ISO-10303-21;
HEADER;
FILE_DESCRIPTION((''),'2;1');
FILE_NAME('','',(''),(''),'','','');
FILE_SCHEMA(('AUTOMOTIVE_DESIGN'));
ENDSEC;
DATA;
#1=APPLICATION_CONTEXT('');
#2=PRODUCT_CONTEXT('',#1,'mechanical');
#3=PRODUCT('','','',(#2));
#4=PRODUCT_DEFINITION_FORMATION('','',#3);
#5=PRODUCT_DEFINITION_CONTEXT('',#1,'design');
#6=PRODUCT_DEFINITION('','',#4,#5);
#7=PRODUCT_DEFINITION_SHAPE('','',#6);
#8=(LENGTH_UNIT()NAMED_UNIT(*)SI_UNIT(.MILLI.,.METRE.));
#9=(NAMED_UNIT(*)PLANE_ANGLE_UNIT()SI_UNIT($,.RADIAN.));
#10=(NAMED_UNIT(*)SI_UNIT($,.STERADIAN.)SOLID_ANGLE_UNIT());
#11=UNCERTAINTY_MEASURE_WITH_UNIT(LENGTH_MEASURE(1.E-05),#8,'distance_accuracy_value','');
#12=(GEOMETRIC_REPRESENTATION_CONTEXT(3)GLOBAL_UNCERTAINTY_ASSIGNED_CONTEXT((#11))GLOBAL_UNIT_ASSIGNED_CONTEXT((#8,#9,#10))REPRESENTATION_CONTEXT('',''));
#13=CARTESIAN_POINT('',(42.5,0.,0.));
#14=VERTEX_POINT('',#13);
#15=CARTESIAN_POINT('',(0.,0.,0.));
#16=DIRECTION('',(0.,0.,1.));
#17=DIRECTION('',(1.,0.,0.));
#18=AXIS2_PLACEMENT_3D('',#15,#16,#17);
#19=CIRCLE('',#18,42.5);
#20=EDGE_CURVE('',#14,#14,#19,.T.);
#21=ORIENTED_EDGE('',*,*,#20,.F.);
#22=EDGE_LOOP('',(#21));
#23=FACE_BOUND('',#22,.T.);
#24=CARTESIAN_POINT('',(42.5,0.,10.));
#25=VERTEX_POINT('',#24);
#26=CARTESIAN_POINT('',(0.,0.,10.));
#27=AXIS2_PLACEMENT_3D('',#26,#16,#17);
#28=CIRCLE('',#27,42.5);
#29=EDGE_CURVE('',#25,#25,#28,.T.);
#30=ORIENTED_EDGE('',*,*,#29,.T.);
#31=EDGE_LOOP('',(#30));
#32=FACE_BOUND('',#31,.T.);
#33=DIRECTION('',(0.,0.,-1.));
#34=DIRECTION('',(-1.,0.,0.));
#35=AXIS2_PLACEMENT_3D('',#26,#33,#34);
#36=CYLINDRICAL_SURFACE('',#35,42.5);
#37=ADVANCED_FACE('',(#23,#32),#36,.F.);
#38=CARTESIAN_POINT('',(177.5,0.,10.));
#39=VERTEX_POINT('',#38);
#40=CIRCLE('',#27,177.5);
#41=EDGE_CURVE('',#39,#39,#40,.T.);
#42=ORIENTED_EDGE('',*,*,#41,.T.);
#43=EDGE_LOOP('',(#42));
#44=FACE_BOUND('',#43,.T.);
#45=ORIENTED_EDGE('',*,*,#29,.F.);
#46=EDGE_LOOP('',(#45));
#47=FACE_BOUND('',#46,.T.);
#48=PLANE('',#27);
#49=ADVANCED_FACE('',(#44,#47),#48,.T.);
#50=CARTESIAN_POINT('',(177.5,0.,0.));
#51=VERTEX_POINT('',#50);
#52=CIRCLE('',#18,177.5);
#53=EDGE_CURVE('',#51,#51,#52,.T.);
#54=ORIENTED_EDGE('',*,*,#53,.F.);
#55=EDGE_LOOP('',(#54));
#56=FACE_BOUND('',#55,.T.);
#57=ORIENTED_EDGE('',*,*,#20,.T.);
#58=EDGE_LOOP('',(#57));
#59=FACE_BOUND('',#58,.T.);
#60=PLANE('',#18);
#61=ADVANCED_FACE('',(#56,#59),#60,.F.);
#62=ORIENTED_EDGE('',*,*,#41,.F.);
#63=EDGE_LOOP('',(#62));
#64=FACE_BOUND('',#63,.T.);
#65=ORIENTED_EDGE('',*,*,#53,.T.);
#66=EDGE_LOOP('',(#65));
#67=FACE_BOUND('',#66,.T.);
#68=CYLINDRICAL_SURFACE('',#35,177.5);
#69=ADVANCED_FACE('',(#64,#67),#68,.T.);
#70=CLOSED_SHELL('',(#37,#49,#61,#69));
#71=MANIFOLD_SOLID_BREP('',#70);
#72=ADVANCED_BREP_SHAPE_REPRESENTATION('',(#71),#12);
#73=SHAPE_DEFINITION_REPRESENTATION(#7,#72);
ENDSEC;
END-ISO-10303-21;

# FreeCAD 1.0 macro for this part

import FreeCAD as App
import Part
import Sketcher
from FreeCAD import Vector

doc = App.newDocument("Part")
body = doc.addObject("PartDesign::Body", "Body")

sketch1 = body.newObject("Sketcher::SketchObject", "Sketch")
sketch1.AttachmentSupport = (doc.getObject("XY_Plane"), [""])
sketch1.MapMode = "FlatFace"
sketch1.addGeometry(Part.Circle(Vector(0, 0, 0), Vector(0, 0, 1), 178), False)
sketch1.addGeometry(Part.Circle(Vector(0, 0, 0), Vector(0, 0, 1), 42), False)
sketch1.addConstraint(Sketcher.Constraint("Coincident", 0, 3, -1, 1))
sketch1.addConstraint(Sketcher.Constraint("Coincident", 1, 3, -1, 1))
sketch1.addConstraint(Sketcher.Constraint("Diameter", 0, 355.0))
sketch1.addConstraint(Sketcher.Constraint("Diameter", 1, 85.0))
pad1 = body.newObject("PartDesign::Pad", "Pad")
pad1.Profile = sketch1
pad1.Length = 10

doc.recompute()
